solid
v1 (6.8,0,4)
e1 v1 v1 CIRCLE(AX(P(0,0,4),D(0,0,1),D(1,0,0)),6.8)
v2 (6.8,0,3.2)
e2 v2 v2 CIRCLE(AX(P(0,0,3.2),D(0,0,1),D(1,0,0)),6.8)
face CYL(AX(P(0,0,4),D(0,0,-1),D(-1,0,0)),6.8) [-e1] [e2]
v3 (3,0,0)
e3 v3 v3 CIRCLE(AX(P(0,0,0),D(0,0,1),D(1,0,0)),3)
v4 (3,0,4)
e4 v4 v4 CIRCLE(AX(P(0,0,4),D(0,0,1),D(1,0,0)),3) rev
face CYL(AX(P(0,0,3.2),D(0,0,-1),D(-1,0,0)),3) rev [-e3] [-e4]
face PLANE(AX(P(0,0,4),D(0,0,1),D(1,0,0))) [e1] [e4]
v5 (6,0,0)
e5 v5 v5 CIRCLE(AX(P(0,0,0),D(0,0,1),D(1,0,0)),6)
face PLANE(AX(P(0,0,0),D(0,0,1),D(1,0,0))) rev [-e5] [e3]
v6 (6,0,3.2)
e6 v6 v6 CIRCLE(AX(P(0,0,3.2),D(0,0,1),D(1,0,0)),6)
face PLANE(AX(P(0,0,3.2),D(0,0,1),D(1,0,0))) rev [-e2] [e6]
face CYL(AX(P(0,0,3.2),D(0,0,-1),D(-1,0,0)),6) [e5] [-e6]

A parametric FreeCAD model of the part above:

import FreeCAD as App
import Part
import Sketcher

doc = App.newDocument("Part")
body = doc.addObject("PartDesign::Body", "Body")

# Sketch on XY plane
sketch1 = body.newObject("Sketcher::SketchObject", "Sketch")
sketch1.AttachmentSupport = (doc.getObject("XY_Plane"), [""])
sketch1.MapMode = "FlatFace"
sketch1.addGeometry([
    Part.Circle(App.Vector(0, 0, 0), App.Vector(0, 0, 1), 6),
    Part.Circle(App.Vector(0, 0, 0), App.Vector(0, 0, 1), 3),
], False)
sketch1.addConstraint([
    Sketcher.Constraint("Coincident", 0, 3, -1, 1),
    Sketcher.Constraint("Coincident", 1, 3, -1, 1),
    Sketcher.Constraint("Diameter", 0, 12.0),
    Sketcher.Constraint("Diameter", 1, 6.0),
])
pad1 = body.newObject("PartDesign::Pad", "Pad")
pad1.Profile = sketch1
pad1.Length = 3.2

# Sketch on XY plane
sketch2 = body.newObject("Sketcher::SketchObject", "Sketch001")
sketch2.AttachmentSupport = (doc.getObject("XY_Plane"), [""])
sketch2.MapMode = "FlatFace"
sketch2.AttachmentOffset = App.Placement(App.Vector(0, 0, 3.2), App.Rotation())
sketch2.addGeometry(Part.Circle(App.Vector(0, 0, 0), App.Vector(0, 0, 1), 7), False)
sketch2.addConstraint([
    Sketcher.Constraint("Coincident", 0, 3, -1, 1),
    Sketcher.Constraint("Diameter", 0, 13.6),
])
pad2 = body.newObject("PartDesign::Pad", "Pad001")
pad2.Profile = sketch2
pad2.Length = 0.8

# Sketch on XY plane
sketch3 = body.newObject("Sketcher::SketchObject", "Sketch002")
sketch3.AttachmentSupport = (doc.getObject("XY_Plane"), [""])
sketch3.MapMode = "FlatFace"
sketch3.AttachmentOffset = App.Placement(App.Vector(0, 0, 3.2), App.Rotation())
sketch3.addGeometry(Part.Circle(App.Vector(0, 0, 0), App.Vector(0, 0, 1), 3), False)
sketch3.addConstraint([
    Sketcher.Constraint("Coincident", 0, 3, -1, 1),
    Sketcher.Constraint("Diameter", 0, 6.0),
])
pocket1 = body.newObject("PartDesign::Pocket", "Pocket")
pocket1.Profile = sketch3
pocket1.Length = 0.8
pocket1.Reversed = True

doc.recompute()
